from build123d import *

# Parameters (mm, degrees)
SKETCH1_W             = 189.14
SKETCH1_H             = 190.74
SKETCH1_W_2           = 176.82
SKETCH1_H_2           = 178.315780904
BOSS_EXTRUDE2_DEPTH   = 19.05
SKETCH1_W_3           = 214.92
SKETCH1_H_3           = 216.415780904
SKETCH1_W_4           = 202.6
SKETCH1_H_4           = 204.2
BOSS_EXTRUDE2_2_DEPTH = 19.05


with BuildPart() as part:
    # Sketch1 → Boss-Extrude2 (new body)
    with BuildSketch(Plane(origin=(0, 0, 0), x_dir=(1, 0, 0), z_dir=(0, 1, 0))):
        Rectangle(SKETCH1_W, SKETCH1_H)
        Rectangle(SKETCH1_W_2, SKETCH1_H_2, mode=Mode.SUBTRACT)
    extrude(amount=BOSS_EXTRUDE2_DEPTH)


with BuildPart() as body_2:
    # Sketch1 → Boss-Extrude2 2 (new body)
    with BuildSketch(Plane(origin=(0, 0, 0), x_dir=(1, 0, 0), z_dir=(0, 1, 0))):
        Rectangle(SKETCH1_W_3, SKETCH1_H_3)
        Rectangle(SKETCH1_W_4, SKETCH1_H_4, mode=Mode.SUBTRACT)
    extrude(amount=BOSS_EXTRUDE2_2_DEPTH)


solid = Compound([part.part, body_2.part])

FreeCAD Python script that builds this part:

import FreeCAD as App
import Part
import Sketcher

V = App.Vector


def add_polygon(sketch, points):
    """Adds a closed chain of lines whose ends are joined by coincident constraints."""
    first, n = sketch.GeometryCount, len(points)
    for a, b in zip(points, points[1:] + points[:1]):
        sketch.addGeometry(Part.LineSegment(App.Vector(*a, 0), App.Vector(*b, 0)), False)
    for i in range(n):
        sketch.addConstraint(Sketcher.Constraint("Coincident", first + i, 2, first + (i + 1) % n, 1))

doc = App.newDocument("Part")
params = doc.addObject("Spreadsheet::Sheet", "Params")
for row, (alias, value) in enumerate([
    ("sketch1_width", "189.14 mm"),
    ("sketch1_width2", "176.82 mm"),
    ("sketch1_height", "190.74 mm"),
    ("pad1_length", "19.05 mm"),
    ("sketch2_width", "202.6 mm"),
    ("sketch2_height", "204.2 mm"),
    ("sketch2_width2", "214.92 mm"),
    ("pad2_length", "19.05 mm"),
], start=1):
    params.set(f"A{row}", alias)
    params.set(f"B{row}", "=" + value)
    params.setAlias(f"B{row}", alias)

body = doc.addObject("PartDesign::Body", "Body")

# Sketch on XZ plane
sketch1 = body.newObject("Sketcher::SketchObject", "Sketch")
sketch1.AttachmentSupport = (doc.getObject("XZ_Plane"), [""])
sketch1.MapMode = "FlatFace"
add_polygon(sketch1, [(-94.57, -95.37), (-94.57, 95.37), (94.57, 95.37), (94.57, -95.37)])  # lines 0-3
add_polygon(sketch1, [(88.41, 89.15789), (-88.41, 89.15789), (-88.41, -89.15789), (88.41, -89.15789)])  # lines 4-7
sketch1.addConstraint(Sketcher.Constraint("Vertical", 0))
sketch1.addConstraint(Sketcher.Constraint("Horizontal", 1))
sketch1.addConstraint(Sketcher.Constraint("Vertical", 2))
sketch1.addConstraint(Sketcher.Constraint("Horizontal", 3))
sketch1.addConstraint(Sketcher.Constraint("Horizontal", 4))
sketch1.addConstraint(Sketcher.Constraint("Vertical", 5))
sketch1.addConstraint(Sketcher.Constraint("Horizontal", 6))
sketch1.addConstraint(Sketcher.Constraint("Vertical", 7))
sketch1.addConstraint(Sketcher.Constraint("Symmetric", 0, 2, 2, 2, -1, 1))
sketch1.addConstraint(Sketcher.Constraint("Symmetric", 4, 2, 6, 2, -1, 1))
sketch1.addConstraint(Sketcher.Constraint("DistanceX", 1, 1, 1, 2, 189.14))
sketch1.addConstraint(Sketcher.Constraint("DistanceX", 4, 2, 4, 1, 176.82))
sketch1.addConstraint(Sketcher.Constraint("DistanceY", 0, 1, 0, 2, 190.74))
sketch1.addConstraint(Sketcher.Constraint("DistanceY", 5, 2, 5, 1, 178.315781))
sketch1.setExpression("Constraints[18]", "Params.sketch1_width")
sketch1.setExpression("Constraints[19]", "Params.sketch1_width2")
sketch1.setExpression("Constraints[20]", "Params.sketch1_height")
pad1 = body.newObject("PartDesign::Pad", "Pad")
pad1.Profile = sketch1
pad1.setExpression("Length", "Params.pad1_length")
pad1.Reversed = True
body2 = doc.addObject("PartDesign::Body", "Body001")

# Sketch on XZ plane
sketch2 = body2.newObject("Sketcher::SketchObject", "Sketch001")
sketch2.AttachmentSupport = (doc.getObject("XZ_Plane001"), [""])
sketch2.MapMode = "FlatFace"
add_polygon(sketch2, [(-107.46, -108.20789), (-107.46, 108.20789), (107.46, 108.20789), (107.46, -108.20789)])  # lines 0-3
add_polygon(sketch2, [(101.3, 102.1), (-101.3, 102.1), (-101.3, -102.1), (101.3, -102.1)])  # lines 4-7
sketch2.addConstraint(Sketcher.Constraint("Vertical", 0))
sketch2.addConstraint(Sketcher.Constraint("Horizontal", 1))
sketch2.addConstraint(Sketcher.Constraint("Vertical", 2))
sketch2.addConstraint(Sketcher.Constraint("Horizontal", 3))
sketch2.addConstraint(Sketcher.Constraint("Horizontal", 4))
sketch2.addConstraint(Sketcher.Constraint("Vertical", 5))
sketch2.addConstraint(Sketcher.Constraint("Horizontal", 6))
sketch2.addConstraint(Sketcher.Constraint("Vertical", 7))
sketch2.addConstraint(Sketcher.Constraint("Symmetric", 0, 2, 2, 2, -1, 1))
sketch2.addConstraint(Sketcher.Constraint("Symmetric", 4, 2, 6, 2, -1, 1))
sketch2.addConstraint(Sketcher.Constraint("DistanceX", 4, 2, 4, 1, 202.6))
sketch2.addConstraint(Sketcher.Constraint("DistanceY", 5, 2, 5, 1, 204.2))
sketch2.addConstraint(Sketcher.Constraint("DistanceX", 1, 1, 1, 2, 214.92))
sketch2.addConstraint(Sketcher.Constraint("DistanceY", 0, 1, 0, 2, 216.415781))
sketch2.setExpression("Constraints[18]", "Params.sketch2_width")
sketch2.setExpression("Constraints[19]", "Params.sketch2_height")
sketch2.setExpression("Constraints[20]", "Params.sketch2_width2")
pad2 = body2.newObject("PartDesign::Pad", "Pad001")
pad2.Profile = sketch2
pad2.setExpression("Length", "Params.pad2_length")
pad2.Reversed = True

doc.recompute()
